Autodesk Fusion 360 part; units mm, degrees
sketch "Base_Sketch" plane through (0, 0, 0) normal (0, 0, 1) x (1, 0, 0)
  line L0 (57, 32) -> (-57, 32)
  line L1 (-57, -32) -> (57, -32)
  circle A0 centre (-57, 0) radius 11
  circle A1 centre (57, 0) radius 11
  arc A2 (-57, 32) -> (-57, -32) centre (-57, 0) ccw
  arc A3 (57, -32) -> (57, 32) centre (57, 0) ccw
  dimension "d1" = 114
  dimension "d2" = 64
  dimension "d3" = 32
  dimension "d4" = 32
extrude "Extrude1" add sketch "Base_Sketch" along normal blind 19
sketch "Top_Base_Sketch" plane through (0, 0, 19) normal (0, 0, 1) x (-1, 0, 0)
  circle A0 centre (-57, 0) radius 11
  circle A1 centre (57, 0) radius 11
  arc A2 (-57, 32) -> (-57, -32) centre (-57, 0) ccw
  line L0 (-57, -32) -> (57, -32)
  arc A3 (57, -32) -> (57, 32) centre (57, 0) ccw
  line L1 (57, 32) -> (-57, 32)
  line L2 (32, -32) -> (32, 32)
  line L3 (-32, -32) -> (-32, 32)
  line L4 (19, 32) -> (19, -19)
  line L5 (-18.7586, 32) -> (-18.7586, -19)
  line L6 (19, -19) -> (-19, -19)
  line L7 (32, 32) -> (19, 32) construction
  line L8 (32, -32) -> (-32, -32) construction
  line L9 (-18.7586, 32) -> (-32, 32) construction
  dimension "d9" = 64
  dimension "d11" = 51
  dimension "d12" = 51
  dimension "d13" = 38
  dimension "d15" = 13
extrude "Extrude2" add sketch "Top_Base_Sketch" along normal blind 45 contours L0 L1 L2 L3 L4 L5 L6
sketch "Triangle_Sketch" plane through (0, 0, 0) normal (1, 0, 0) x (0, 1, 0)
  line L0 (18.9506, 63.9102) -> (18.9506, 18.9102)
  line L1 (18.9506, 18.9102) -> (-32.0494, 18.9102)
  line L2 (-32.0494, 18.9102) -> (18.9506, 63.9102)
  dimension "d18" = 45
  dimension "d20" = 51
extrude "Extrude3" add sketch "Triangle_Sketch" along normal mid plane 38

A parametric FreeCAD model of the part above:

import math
import FreeCAD as App
import Part
import Sketcher
from FreeCAD import Vector


def add_polygon(sketch, points):
    """Adds a closed chain of lines whose ends are joined by coincident constraints."""
    first, n = sketch.GeometryCount, len(points)
    for a, b in zip(points, points[1:] + points[:1]):
        sketch.addGeometry(Part.LineSegment(App.Vector(*a, 0), App.Vector(*b, 0)), False)
    for i in range(n):
        sketch.addConstraint(Sketcher.Constraint("Coincident", first + i, 2, first + (i + 1) % n, 1))

doc = App.newDocument("Part")
body = doc.addObject("PartDesign::Body", "Body")

sketch1 = body.newObject("Sketcher::SketchObject", "Sketch")
sketch1.AttachmentSupport = (doc.getObject("XY_Plane"), [""])
sketch1.MapMode = "FlatFace"
sketch1.addGeometry([
    Part.ArcOfCircle(Part.Circle(Vector(57, 0, 0), Vector(0, 0, 1), 32), math.radians(-90), math.radians(90)),
    Part.LineSegment(Vector(57, 32, 0), Vector(-57, 32, 0)),
    Part.ArcOfCircle(Part.Circle(Vector(-57, 0, 0), Vector(0, 0, 1), 32), math.radians(90), math.radians(270)),
    Part.LineSegment(Vector(-57, -32, 0), Vector(57, -32, 0)),
    Part.Circle(Vector(-57, 0, 0), Vector(0, 0, 1), 11),
    Part.Circle(Vector(57, 0, 0), Vector(0, 0, 1), 11),
], False)
sketch1.addConstraint([
    Sketcher.Constraint("Tangent", 0, 2, 1, 1),
    Sketcher.Constraint("Tangent", 1, 2, 2, 1),
    Sketcher.Constraint("Tangent", 2, 2, 3, 1),
    Sketcher.Constraint("Tangent", 3, 2, 0, 1),
    Sketcher.Constraint("Horizontal", 1),
    Sketcher.Constraint("Horizontal", 3),
    Sketcher.Constraint("Coincident", 4, 3, 2, 3),
    Sketcher.Constraint("Coincident", 5, 3, 0, 3),
    Sketcher.Constraint("Equal", 4, 5),
    Sketcher.Constraint("Symmetric", 0, 3, 2, 3, -1, 1),
    Sketcher.Constraint("Radius", 0, 32.0),
    Sketcher.Constraint("DistanceX", 1, 2, 1, 1, 114.0),
    Sketcher.Constraint("Diameter", 4, 22.0),
])
pad1 = body.newObject("PartDesign::Pad", "Pad")
pad1.Profile = sketch1
pad1.Length = 19

sketch2 = body.newObject("Sketcher::SketchObject", "Sketch001")
sketch2.AttachmentSupport = (doc.getObject("XY_Plane"), [""])
sketch2.MapMode = "FlatFace"
sketch2.AttachmentOffset = App.Placement(Vector(0, 0, 19), App.Rotation())
add_polygon(sketch2, [(19, -32), (32, -32), (32, 32), (-32, 32), (-32, -32), (-19, -32), (-19, 19), (19, 19)])
sketch2.addConstraint([
    Sketcher.Constraint("Horizontal", 0),
    Sketcher.Constraint("Vertical", 1),
    Sketcher.Constraint("Horizontal", 2),
    Sketcher.Constraint("Vertical", 3),
    Sketcher.Constraint("Horizontal", 4),
    Sketcher.Constraint("Vertical", 5),
    Sketcher.Constraint("Horizontal", 6),
    Sketcher.Constraint("Vertical", 7),
    Sketcher.Constraint("Symmetric", 0, 2, 2, 2, -1, 1),
    Sketcher.Constraint("Horizontal", 0, 2, 3, 2),
    Sketcher.Constraint("Equal", 2, 1),
    Sketcher.Constraint("DistanceX", 2, 2, 2, 1, 64.0),
    Sketcher.Constraint("DistanceX", 4, 1, 4, 2, 13.0),
    Sketcher.Constraint("DistanceY", 5, 1, 5, 2, 51.0),
    Sketcher.Constraint("DistanceX", 0, 1, 0, 2, 13.2414),
])
pad2 = body.newObject("PartDesign::Pad", "Pad001")
pad2.Profile = sketch2
pad2.Length = 45

sketch3 = body.newObject("Sketcher::SketchObject", "Sketch002")
sketch3.AttachmentSupport = (doc.getObject("YZ_Plane"), [""])
sketch3.MapMode = "FlatFace"
add_polygon(sketch3, [(19, 19), (19, 64), (-32, 19)])
sketch3.addConstraint([
    Sketcher.Constraint("Vertical", 0),
    Sketcher.Constraint("Horizontal", 2),
    Sketcher.Constraint("DistanceX", 2, 1, 2, 2, 51.0),
    Sketcher.Constraint("DistanceY", 0, 1, 0, 2, 45.0),
    Sketcher.Constraint("DistanceX", -1, 1, 0, 2, 18.9506),
    Sketcher.Constraint("DistanceY", -1, 1, 0, 2, 63.9102),
])
pad3 = body.newObject("PartDesign::Pad", "Pad002")
pad3.Profile = sketch3
pad3.Length = 38
pad3.Midplane = True

doc.recompute()
